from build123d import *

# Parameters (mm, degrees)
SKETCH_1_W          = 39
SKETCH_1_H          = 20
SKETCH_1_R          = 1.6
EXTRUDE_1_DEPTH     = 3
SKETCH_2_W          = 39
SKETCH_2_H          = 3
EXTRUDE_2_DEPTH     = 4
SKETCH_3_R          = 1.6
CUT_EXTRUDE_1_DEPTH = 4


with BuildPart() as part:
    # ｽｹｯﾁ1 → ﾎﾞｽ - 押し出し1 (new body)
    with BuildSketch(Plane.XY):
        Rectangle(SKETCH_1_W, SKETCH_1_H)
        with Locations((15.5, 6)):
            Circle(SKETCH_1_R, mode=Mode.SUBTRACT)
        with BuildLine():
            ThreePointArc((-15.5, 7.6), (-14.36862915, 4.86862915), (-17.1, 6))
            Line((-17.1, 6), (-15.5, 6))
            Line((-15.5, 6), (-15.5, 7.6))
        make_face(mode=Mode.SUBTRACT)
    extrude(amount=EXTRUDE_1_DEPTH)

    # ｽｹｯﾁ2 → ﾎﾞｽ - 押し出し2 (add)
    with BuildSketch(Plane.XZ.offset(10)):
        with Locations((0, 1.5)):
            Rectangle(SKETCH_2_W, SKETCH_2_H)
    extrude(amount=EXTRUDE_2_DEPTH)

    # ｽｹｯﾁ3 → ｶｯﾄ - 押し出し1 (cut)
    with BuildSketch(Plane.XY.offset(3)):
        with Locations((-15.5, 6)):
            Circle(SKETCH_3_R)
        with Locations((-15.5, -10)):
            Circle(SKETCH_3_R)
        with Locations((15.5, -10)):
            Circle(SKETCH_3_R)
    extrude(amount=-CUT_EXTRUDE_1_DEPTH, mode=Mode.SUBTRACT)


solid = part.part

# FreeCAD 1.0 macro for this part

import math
import FreeCAD as App
import Part
import Sketcher

V = App.Vector

doc = App.newDocument("Part")
params = doc.addObject("Spreadsheet::Sheet", "Params")
for row, (alias, value) in enumerate([
    ("sketch1_diameter", "3.2 mm"),
    ("sketch1_width", "39 mm"),
    ("sketch1_height", "20 mm"),
    ("pad1_length", "3 mm"),
    ("sketch2_width", "39 mm"),
    ("sketch2_height", "3 mm"),
    ("pad2_length", "4 mm"),
    ("sketch3_diameter", "3.2 mm"),
    ("pocket1_length", "4 mm"),
], start=1):
    params.set(f"A{row}", alias)
    params.set(f"B{row}", "=" + value)
    params.setAlias(f"B{row}", alias)

body = doc.addObject("PartDesign::Body", "Body")

# Sketch on XY plane
sketch1 = doc.addObject("Sketcher::SketchObject", "Sketch")
body.addObject(sketch1)
sketch1.AttachmentSupport = (doc.XY_Plane, [""])
sketch1.MapMode = "FlatFace"
sketch1.addGeometry(Part.LineSegment(V(-19.5, 10, 0), V(-19.5, -10, 0)), False)
sketch1.addGeometry(Part.LineSegment(V(-19.5, -10, 0), V(19.5, -10, 0)), False)
sketch1.addGeometry(Part.LineSegment(V(19.5, -10, 0), V(19.5, 10, 0)), False)
sketch1.addGeometry(Part.LineSegment(V(19.5, 10, 0), V(-19.5, 10, 0)), False)
sketch1.addGeometry(Part.LineSegment(V(-15.5, 6, 0), V(-15.5, 7.6, 0)), False)
sketch1.addGeometry(Part.ArcOfCircle(Part.Circle(V(-15.5, 6, 0), V(0, 0, 1), 1.6), math.radians(180), math.radians(450)), False)
sketch1.addGeometry(Part.LineSegment(V(-17.1, 6, 0), V(-15.5, 6, 0)), False)
sketch1.addGeometry(Part.Circle(V(15.5, 6, 0), V(0, 0, 1), 1.6), False)
sketch1.addConstraint(Sketcher.Constraint("Coincident", 0, 2, 1, 1))
sketch1.addConstraint(Sketcher.Constraint("Coincident", 1, 2, 2, 1))
sketch1.addConstraint(Sketcher.Constraint("Coincident", 2, 2, 3, 1))
sketch1.addConstraint(Sketcher.Constraint("Coincident", 3, 2, 0, 1))
sketch1.addConstraint(Sketcher.Constraint("Coincident", 4, 2, 5, 2))
sketch1.addConstraint(Sketcher.Constraint("Coincident", 5, 1, 6, 1))
sketch1.addConstraint(Sketcher.Constraint("Coincident", 6, 2, 4, 1))
sketch1.addConstraint(Sketcher.Constraint("Vertical", 0))
sketch1.addConstraint(Sketcher.Constraint("Horizontal", 1))
sketch1.addConstraint(Sketcher.Constraint("Vertical", 2))
sketch1.addConstraint(Sketcher.Constraint("Horizontal", 3))
sketch1.addConstraint(Sketcher.Constraint("Vertical", 4))
sketch1.addConstraint(Sketcher.Constraint("Horizontal", 6))
sketch1.addConstraint(Sketcher.Constraint("Coincident", 6, 2, 5, 3))
sketch1.addConstraint(Sketcher.Constraint("Equal", 5, 7))
sketch1.addConstraint(Sketcher.Constraint("Symmetric", 0, 2, 2, 2, -1, 1))
sketch1.addConstraint(Sketcher.Constraint("Symmetric", 5, 3, 7, 3, -2))
sketch1.addConstraint(Sketcher.Constraint("Diameter", 7, 3.2))
sketch1.addConstraint(Sketcher.Constraint("DistanceX", 1, 1, 1, 2, 39.0))
sketch1.addConstraint(Sketcher.Constraint("DistanceY", 0, 2, 0, 1, 20.0))
sketch1.addConstraint(Sketcher.Constraint("DistanceY", -1, 1, 5, 3, 6.0))
sketch1.addConstraint(Sketcher.Constraint("DistanceX", 5, 3, 7, 3, 31.0))
sketch1.setExpression("Constraints[17]", "Params.sketch1_diameter")
sketch1.setExpression("Constraints[18]", "Params.sketch1_width")
sketch1.setExpression("Constraints[19]", "Params.sketch1_height")
pad1 = doc.addObject("PartDesign::Pad", "Pad")
body.addObject(pad1)
pad1.Profile = sketch1
pad1.setExpression("Length", "Params.pad1_length")

# Sketch on XZ plane
sketch2 = doc.addObject("Sketcher::SketchObject", "Sketch001")
body.addObject(sketch2)
sketch2.AttachmentSupport = (doc.XZ_Plane, [""])
sketch2.MapMode = "FlatFace"
sketch2.AttachmentOffset = App.Placement(V(0, 0, 10), App.Rotation())
sketch2.addGeometry(Part.LineSegment(V(-19.5, 3, 0), V(-19.5, 0, 0)), False)
sketch2.addGeometry(Part.LineSegment(V(-19.5, 0, 0), V(19.5, 0, 0)), False)
sketch2.addGeometry(Part.LineSegment(V(19.5, 0, 0), V(19.5, 3, 0)), False)
sketch2.addGeometry(Part.LineSegment(V(19.5, 3, 0), V(-19.5, 3, 0)), False)
sketch2.addConstraint(Sketcher.Constraint("Coincident", 0, 2, 1, 1))
sketch2.addConstraint(Sketcher.Constraint("Coincident", 1, 2, 2, 1))
sketch2.addConstraint(Sketcher.Constraint("Coincident", 2, 2, 3, 1))
sketch2.addConstraint(Sketcher.Constraint("Coincident", 3, 2, 0, 1))
sketch2.addConstraint(Sketcher.Constraint("Vertical", 0))
sketch2.addConstraint(Sketcher.Constraint("Horizontal", 1))
sketch2.addConstraint(Sketcher.Constraint("Vertical", 2))
sketch2.addConstraint(Sketcher.Constraint("Horizontal", 3))
sketch2.addConstraint(Sketcher.Constraint("Symmetric", 0, 2, 1, 2, -1, 1))
sketch2.addConstraint(Sketcher.Constraint("DistanceX", 1, 1, 1, 2, 39.0))
sketch2.addConstraint(Sketcher.Constraint("DistanceY", 0, 2, 0, 1, 3.0))
sketch2.setExpression("Constraints[9]", "Params.sketch2_width")
sketch2.setExpression("Constraints[10]", "Params.sketch2_height")
pad2 = doc.addObject("PartDesign::Pad", "Pad001")
body.addObject(pad2)
pad2.Profile = sketch2
pad2.setExpression("Length", "Params.pad2_length")

# Sketch on XY plane
sketch3 = doc.addObject("Sketcher::SketchObject", "Sketch002")
body.addObject(sketch3)
sketch3.AttachmentSupport = (doc.XY_Plane, [""])
sketch3.MapMode = "FlatFace"
sketch3.AttachmentOffset = App.Placement(V(0, 0, 3), App.Rotation())
sketch3.addGeometry(Part.Circle(V(-15.5, 6, 0), V(0, 0, 1), 1.6), False)
sketch3.addGeometry(Part.Circle(V(-15.5, -10, 0), V(0, 0, 1), 1.6), False)
sketch3.addGeometry(Part.Circle(V(15.5, -10, 0), V(0, 0, 1), 1.6), False)
sketch3.addConstraint(Sketcher.Constraint("Equal", 0, 1))
sketch3.addConstraint(Sketcher.Constraint("Equal", 1, 2))
sketch3.addConstraint(Sketcher.Constraint("Symmetric", 1, 3, 2, 3, -2))
sketch3.addConstraint(Sketcher.Constraint("Vertical", 0, 3, 1, 3))
sketch3.addConstraint(Sketcher.Constraint("Diameter", 0, 3.2))
sketch3.addConstraint(Sketcher.Constraint("DistanceY", -1, 1, 0, 3, 6.0))
sketch3.addConstraint(Sketcher.Constraint("DistanceY", 1, 3, -1, 1, 10.0))
sketch3.addConstraint(Sketcher.Constraint("DistanceX", 1, 3, 2, 3, 31.0))
sketch3.setExpression("Constraints[4]", "Params.sketch3_diameter")
pocket1 = doc.addObject("PartDesign::Pocket", "Pocket")
body.addObject(pocket1)
pocket1.Profile = sketch3
pocket1.setExpression("Length", "Params.pocket1_length")

doc.recompute()
